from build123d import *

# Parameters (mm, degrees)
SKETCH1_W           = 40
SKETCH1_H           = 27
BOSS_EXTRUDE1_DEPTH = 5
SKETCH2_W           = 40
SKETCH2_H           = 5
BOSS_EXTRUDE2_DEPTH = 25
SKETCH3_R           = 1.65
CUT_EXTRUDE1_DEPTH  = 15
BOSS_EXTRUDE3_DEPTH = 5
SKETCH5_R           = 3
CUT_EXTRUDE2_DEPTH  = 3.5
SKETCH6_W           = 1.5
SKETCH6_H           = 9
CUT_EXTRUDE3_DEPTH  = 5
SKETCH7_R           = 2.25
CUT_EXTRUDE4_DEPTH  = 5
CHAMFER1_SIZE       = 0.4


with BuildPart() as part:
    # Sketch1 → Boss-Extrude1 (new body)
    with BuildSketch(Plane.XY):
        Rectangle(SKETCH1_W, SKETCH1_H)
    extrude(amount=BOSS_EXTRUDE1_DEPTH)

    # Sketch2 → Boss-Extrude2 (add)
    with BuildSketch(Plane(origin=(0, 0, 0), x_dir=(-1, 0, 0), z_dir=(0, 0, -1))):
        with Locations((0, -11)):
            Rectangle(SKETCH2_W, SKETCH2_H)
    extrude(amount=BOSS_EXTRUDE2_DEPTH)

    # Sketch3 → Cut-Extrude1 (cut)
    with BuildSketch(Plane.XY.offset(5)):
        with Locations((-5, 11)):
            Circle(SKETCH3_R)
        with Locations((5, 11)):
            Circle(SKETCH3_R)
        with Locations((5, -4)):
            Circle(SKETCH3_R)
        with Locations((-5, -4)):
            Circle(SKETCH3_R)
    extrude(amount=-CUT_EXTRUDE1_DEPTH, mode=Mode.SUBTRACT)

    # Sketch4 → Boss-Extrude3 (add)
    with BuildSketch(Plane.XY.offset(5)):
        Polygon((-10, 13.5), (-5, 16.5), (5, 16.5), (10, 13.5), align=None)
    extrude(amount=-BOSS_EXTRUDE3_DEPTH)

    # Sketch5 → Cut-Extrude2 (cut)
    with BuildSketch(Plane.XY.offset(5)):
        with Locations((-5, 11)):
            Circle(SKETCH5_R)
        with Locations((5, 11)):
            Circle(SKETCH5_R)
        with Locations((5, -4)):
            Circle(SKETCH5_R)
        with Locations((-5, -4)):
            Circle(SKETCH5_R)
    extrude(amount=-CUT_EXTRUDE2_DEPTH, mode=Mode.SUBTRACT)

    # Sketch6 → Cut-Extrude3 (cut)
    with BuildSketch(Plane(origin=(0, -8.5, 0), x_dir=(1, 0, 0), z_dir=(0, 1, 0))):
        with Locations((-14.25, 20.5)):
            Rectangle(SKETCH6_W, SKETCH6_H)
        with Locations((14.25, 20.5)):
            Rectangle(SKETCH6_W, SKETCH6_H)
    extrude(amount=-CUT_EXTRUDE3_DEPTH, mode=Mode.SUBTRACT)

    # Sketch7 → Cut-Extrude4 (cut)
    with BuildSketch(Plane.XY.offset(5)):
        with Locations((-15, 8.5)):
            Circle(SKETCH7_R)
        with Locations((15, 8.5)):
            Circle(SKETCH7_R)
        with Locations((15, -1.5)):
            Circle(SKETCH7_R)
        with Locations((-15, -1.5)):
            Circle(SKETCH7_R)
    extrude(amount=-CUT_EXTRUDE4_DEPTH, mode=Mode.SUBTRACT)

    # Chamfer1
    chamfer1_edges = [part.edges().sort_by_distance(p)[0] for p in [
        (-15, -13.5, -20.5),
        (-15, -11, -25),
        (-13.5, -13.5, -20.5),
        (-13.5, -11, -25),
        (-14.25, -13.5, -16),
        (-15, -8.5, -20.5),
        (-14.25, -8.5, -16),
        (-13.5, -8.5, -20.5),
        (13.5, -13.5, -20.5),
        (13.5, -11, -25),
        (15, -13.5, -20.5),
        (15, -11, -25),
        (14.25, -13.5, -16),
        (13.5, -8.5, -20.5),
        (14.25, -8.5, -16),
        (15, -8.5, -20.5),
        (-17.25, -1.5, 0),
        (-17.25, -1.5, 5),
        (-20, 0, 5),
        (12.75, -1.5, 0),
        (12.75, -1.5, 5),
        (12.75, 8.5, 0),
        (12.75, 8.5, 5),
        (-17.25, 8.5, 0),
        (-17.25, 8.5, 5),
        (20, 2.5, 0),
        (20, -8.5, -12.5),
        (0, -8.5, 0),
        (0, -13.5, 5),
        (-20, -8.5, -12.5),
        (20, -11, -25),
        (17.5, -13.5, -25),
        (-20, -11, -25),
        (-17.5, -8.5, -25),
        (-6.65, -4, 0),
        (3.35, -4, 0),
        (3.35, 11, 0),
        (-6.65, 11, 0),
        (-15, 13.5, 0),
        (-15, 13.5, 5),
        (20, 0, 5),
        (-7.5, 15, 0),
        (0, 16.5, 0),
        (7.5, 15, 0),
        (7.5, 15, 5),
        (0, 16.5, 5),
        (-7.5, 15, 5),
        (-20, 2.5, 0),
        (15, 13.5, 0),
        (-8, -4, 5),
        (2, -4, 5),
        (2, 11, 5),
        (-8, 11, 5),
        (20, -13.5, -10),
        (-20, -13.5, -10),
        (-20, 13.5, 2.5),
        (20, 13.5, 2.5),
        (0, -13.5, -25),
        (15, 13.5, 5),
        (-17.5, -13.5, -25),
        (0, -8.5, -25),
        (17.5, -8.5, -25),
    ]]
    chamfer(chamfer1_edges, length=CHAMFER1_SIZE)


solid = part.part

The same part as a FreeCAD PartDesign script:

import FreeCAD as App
import Part
import Sketcher
from FreeCAD import Vector
Q = App.Units.Quantity


def edges_at(feature, points):
    """Names of the edges that pass closest to the given points."""
    edges = feature.Shape.Edges
    near = lambda p: min(range(len(edges)), key=lambda i: edges[i].distToShape(Part.Vertex(*p))[0])
    return sorted({f"Edge{near(p) + 1}" for p in points})

doc = App.newDocument("Part")
body = doc.addObject("PartDesign::Body", "Body")

# Sketch on XY plane
sketch1 = body.newObject("Sketcher::SketchObject", "Sketch")
sketch1.AttachmentSupport = (doc.getObject("XY_Plane"), [""])
sketch1.MapMode = "FlatFace"
sketch1.addGeometry([
    Part.LineSegment(Vector(-20, 14, 0), Vector(-20, -14, 0)),
    Part.LineSegment(Vector(-20, -14, 0), Vector(20, -14, 0)),
    Part.LineSegment(Vector(20, -14, 0), Vector(20, 14, 0)),
    Part.LineSegment(Vector(20, 14, 0), Vector(-20, 14, 0)),
], False)
sketch1.addConstraint([
    Sketcher.Constraint("Coincident", 0, 2, 1, 1),
    Sketcher.Constraint("Coincident", 1, 2, 2, 1),
    Sketcher.Constraint("Coincident", 2, 2, 3, 1),
    Sketcher.Constraint("Coincident", 3, 2, 0, 1),
    Sketcher.Constraint("Vertical", 0),
    Sketcher.Constraint("Horizontal", 1),
    Sketcher.Constraint("Vertical", 2),
    Sketcher.Constraint("Horizontal", 3),
    Sketcher.Constraint("Symmetric", 0, 2, 2, 2, -1, 1),
    Sketcher.Constraint("DistanceX", 1, 1, 1, 2, Q("40 mm")),
    Sketcher.Constraint("DistanceY", 0, 2, 0, 1, Q("27 mm")),
])
pad1 = body.newObject("PartDesign::Pad", "Pad")
pad1.Profile = sketch1
pad1.Length = 5

# Sketch on XY plane
sketch2 = body.newObject("Sketcher::SketchObject", "Sketch001")
sketch2.AttachmentSupport = (doc.getObject("XY_Plane"), [""])
sketch2.MapMode = "FlatFace"
sketch2.addGeometry([
    Part.LineSegment(Vector(20, -8, 0), Vector(20, -14, 0)),
    Part.LineSegment(Vector(20, -14, 0), Vector(-20, -14, 0)),
    Part.LineSegment(Vector(-20, -14, 0), Vector(-20, -8, 0)),
    Part.LineSegment(Vector(-20, -8, 0), Vector(20, -8, 0)),
], False)
sketch2.addConstraint([
    Sketcher.Constraint("Coincident", 0, 2, 1, 1),
    Sketcher.Constraint("Coincident", 1, 2, 2, 1),
    Sketcher.Constraint("Coincident", 2, 2, 3, 1),
    Sketcher.Constraint("Coincident", 3, 2, 0, 1),
    Sketcher.Constraint("Vertical", 0),
    Sketcher.Constraint("Horizontal", 1),
    Sketcher.Constraint("Vertical", 2),
    Sketcher.Constraint("Horizontal", 3),
    Sketcher.Constraint("DistanceX", 1, 2, 1, 1, Q("40 mm")),
    Sketcher.Constraint("DistanceY", 0, 2, 0, 1, Q("5 mm")),
    Sketcher.Constraint("DistanceX", -1, 1, 0, 2, Q("20 mm")),
    Sketcher.Constraint("DistanceY", 0, 2, -1, 1, Q("13.5 mm")),
])
pad2 = body.newObject("PartDesign::Pad", "Pad001")
pad2.Profile = sketch2
pad2.Length = 25
pad2.Reversed = True

# Sketch on XY plane
sketch3 = body.newObject("Sketcher::SketchObject", "Sketch002")
sketch3.AttachmentSupport = (doc.getObject("XY_Plane"), [""])
sketch3.MapMode = "FlatFace"
sketch3.AttachmentOffset = App.Placement(Vector(0, 0, 5), App.Rotation())
sketch3.addGeometry([
    Part.Circle(Vector(-5, 11, 0), Vector(0, 0, 1), 1.6),
    Part.Circle(Vector(5, 11, 0), Vector(0, 0, 1), 1.6),
    Part.Circle(Vector(5, -4, 0), Vector(0, 0, 1), 1.6),
    Part.Circle(Vector(-5, -4, 0), Vector(0, 0, 1), 1.6),
], False)
sketch3.addConstraint([
    Sketcher.Constraint("Equal", 0, 1),
    Sketcher.Constraint("Equal", 1, 2),
    Sketcher.Constraint("Equal", 2, 3),
    Sketcher.Constraint("Symmetric", 0, 3, 1, 3, -2),
    Sketcher.Constraint("Symmetric", 2, 3, 3, 3, -2),
    Sketcher.Constraint("Vertical", 1, 3, 2, 3),
    Sketcher.Constraint("Diameter", 0, Q("3.3 mm")),
    Sketcher.Constraint("DistanceX", 0, 3, -1, 1, Q("5 mm")),
    Sketcher.Constraint("DistanceY", -1, 1, 0, 3, Q("11 mm")),
    Sketcher.Constraint("DistanceY", 2, 3, -1, 1, Q("4 mm")),
])
pocket1 = body.newObject("PartDesign::Pocket", "Pocket")
pocket1.Profile = sketch3
pocket1.Length = 15

# Sketch on XY plane
sketch4 = body.newObject("Sketcher::SketchObject", "Sketch003")
sketch4.AttachmentSupport = (doc.getObject("XY_Plane"), [""])
sketch4.MapMode = "FlatFace"
sketch4.AttachmentOffset = App.Placement(Vector(0, 0, 5), App.Rotation())
sketch4.addGeometry([
    Part.LineSegment(Vector(-5, 16, 0), Vector(-10, 14, 0)),
    Part.LineSegment(Vector(-10, 14, 0), Vector(10, 14, 0)),
    Part.LineSegment(Vector(10, 14, 0), Vector(5, 16, 0)),
    Part.LineSegment(Vector(5, 16, 0), Vector(-5, 16, 0)),
], False)
sketch4.addConstraint([
    Sketcher.Constraint("Coincident", 0, 2, 1, 1),
    Sketcher.Constraint("Coincident", 1, 2, 2, 1),
    Sketcher.Constraint("Coincident", 2, 2, 3, 1),
    Sketcher.Constraint("Coincident", 3, 2, 0, 1),
    Sketcher.Constraint("Horizontal", 1),
    Sketcher.Constraint("Horizontal", 3),
    Sketcher.Constraint("Equal", 0, 2),
    Sketcher.Constraint("DistanceX", 1, 1, 1, 2, Q("20 mm")),
    Sketcher.Constraint("DistanceX", 3, 2, 3, 1, Q("10 mm")),
    Sketcher.Constraint("DistanceX", 0, 2, -1, 1, Q("10 mm")),
    Sketcher.Constraint("DistanceY", 1, 2, 2, 2, Q("3 mm")),
    Sketcher.Constraint("DistanceY", -1, 1, 0, 2, Q("13.5 mm")),
])
pad3 = body.newObject("PartDesign::Pad", "Pad002")
pad3.Profile = sketch4
pad3.Length = 5
pad3.Reversed = True

# Sketch on XY plane
sketch5 = body.newObject("Sketcher::SketchObject", "Sketch004")
sketch5.AttachmentSupport = (doc.getObject("XY_Plane"), [""])
sketch5.MapMode = "FlatFace"
sketch5.AttachmentOffset = App.Placement(Vector(0, 0, 5), App.Rotation())
sketch5.addGeometry([
    Part.Circle(Vector(-5, 11, 0), Vector(0, 0, 1), 3),
    Part.Circle(Vector(5, 11, 0), Vector(0, 0, 1), 3),
    Part.Circle(Vector(5, -4, 0), Vector(0, 0, 1), 3),
    Part.Circle(Vector(-5, -4, 0), Vector(0, 0, 1), 3),
], False)
sketch5.addConstraint([
    Sketcher.Constraint("Equal", 0, 1),
    Sketcher.Constraint("Equal", 1, 2),
    Sketcher.Constraint("Equal", 2, 3),
    Sketcher.Constraint("Symmetric", 0, 3, 1, 3, -2),
    Sketcher.Constraint("Symmetric", 2, 3, 3, 3, -2),
    Sketcher.Constraint("Vertical", 1, 3, 2, 3),
    Sketcher.Constraint("Diameter", 0, Q("6 mm")),
    Sketcher.Constraint("DistanceX", 0, 3, -1, 1, Q("5 mm")),
    Sketcher.Constraint("DistanceY", -1, 1, 0, 3, Q("11 mm")),
    Sketcher.Constraint("DistanceY", 2, 3, -1, 1, Q("4 mm")),
])
pocket2 = body.newObject("PartDesign::Pocket", "Pocket001")
pocket2.Profile = sketch5
pocket2.Length = 3.5

# Sketch on XZ plane
sketch6 = body.newObject("Sketcher::SketchObject", "Sketch005")
sketch6.AttachmentSupport = (doc.getObject("XZ_Plane"), [""])
sketch6.MapMode = "FlatFace"
sketch6.AttachmentOffset = App.Placement(Vector(0, 0, 8.5), App.Rotation())
sketch6.addGeometry([
    Part.LineSegment(Vector(-15, -25, 0), Vector(-15, -16, 0)),  # 0
    Part.LineSegment(Vector(-15, -16, 0), Vector(-13.5, -16, 0)),  # 1
    Part.LineSegment(Vector(-13.5, -16, 0), Vector(-13.5, -25, 0)),  # 2
    Part.LineSegment(Vector(-13.5, -25, 0), Vector(-15, -25, 0)),  # 3
    Part.LineSegment(Vector(13.5, -25, 0), Vector(13.5, -16, 0)),  # 4
    Part.LineSegment(Vector(13.5, -16, 0), Vector(15, -16, 0)),  # 5
    Part.LineSegment(Vector(15, -16, 0), Vector(15, -25, 0)),  # 6
    Part.LineSegment(Vector(15, -25, 0), Vector(13.5, -25, 0)),  # 7
], False)
sketch6.addConstraint([
    Sketcher.Constraint("Coincident", 0, 2, 1, 1),
    Sketcher.Constraint("Coincident", 1, 2, 2, 1),
    Sketcher.Constraint("Coincident", 2, 2, 3, 1),
    Sketcher.Constraint("Coincident", 3, 2, 0, 1),
    Sketcher.Constraint("Coincident", 4, 2, 5, 1),
    Sketcher.Constraint("Coincident", 5, 2, 6, 1),
    Sketcher.Constraint("Coincident", 6, 2, 7, 1),
    Sketcher.Constraint("Coincident", 7, 2, 4, 1),
    Sketcher.Constraint("Vertical", 0),
    Sketcher.Constraint("Horizontal", 1),
    Sketcher.Constraint("Vertical", 2),
    Sketcher.Constraint("Horizontal", 3),
    Sketcher.Constraint("Vertical", 4),
    Sketcher.Constraint("Horizontal", 5),
    Sketcher.Constraint("Vertical", 6),
    Sketcher.Constraint("Horizontal", 7),
    Sketcher.Constraint("Symmetric", 1, 2, 4, 2, -2),
    Sketcher.Constraint("Symmetric", 3, 2, 6, 2, -2),
    Sketcher.Constraint("DistanceY", 0, 1, 0, 2, Q("9 mm")),
    Sketcher.Constraint("DistanceX", 1, 1, 1, 2, Q("1.5 mm")),
    Sketcher.Constraint("DistanceX", 0, 2, -1, 1, Q("15 mm")),
    Sketcher.Constraint("DistanceY", 0, 2, -1, 1, Q("16 mm")),
])
pocket3 = body.newObject("PartDesign::Pocket", "Pocket002")
pocket3.Profile = sketch6
pocket3.Length = 5
pocket3.Reversed = True

# Sketch on XY plane
sketch7 = body.newObject("Sketcher::SketchObject", "Sketch006")
sketch7.AttachmentSupport = (doc.getObject("XY_Plane"), [""])
sketch7.MapMode = "FlatFace"
sketch7.AttachmentOffset = App.Placement(Vector(0, 0, 5), App.Rotation())
sketch7.addGeometry([
    Part.Circle(Vector(-15, 8.5, 0), Vector(0, 0, 1), 2.2),
    Part.Circle(Vector(15, 8.5, 0), Vector(0, 0, 1), 2.2),
    Part.Circle(Vector(15, -1.5, 0), Vector(0, 0, 1), 2.2),
    Part.Circle(Vector(-15, -1.5, 0), Vector(0, 0, 1), 2.2),
], False)
sketch7.addConstraint([
    Sketcher.Constraint("Equal", 0, 1),
    Sketcher.Constraint("Equal", 1, 2),
    Sketcher.Constraint("Equal", 2, 3),
    Sketcher.Constraint("Symmetric", 0, 3, 1, 3, -2),
    Sketcher.Constraint("Symmetric", 2, 3, 3, 3, -2),
    Sketcher.Constraint("Vertical", 1, 3, 2, 3),
    Sketcher.Constraint("Diameter", 0, Q("4.5 mm")),
    Sketcher.Constraint("DistanceX", 0, 3, -1, 1, Q("15 mm")),
    Sketcher.Constraint("DistanceY", 2, 3, 1, 3, Q("10 mm")),
    Sketcher.Constraint("DistanceY", -1, 1, 0, 3, Q("8.5 mm")),
])
pocket4 = body.newObject("PartDesign::Pocket", "Pocket003")
pocket4.Profile = sketch7
pocket4.Length = 5
doc.recompute()

chamfer = body.newObject("PartDesign::Chamfer", "Chamfer")
chamfer.Base = (pocket4, edges_at(pocket4, [
    (-15, -13.5, -20.5),
    (-15, -11, -25),
    (-13.5, -13.5, -20.5),
    (-13.5, -11, -25),
    (-14.25, -13.5, -16),
    (-15, -8.5, -20.5),
    (-14.25, -8.5, -16),
    (-13.5, -8.5, -20.5),
    (13.5, -13.5, -20.5),
    (13.5, -11, -25),
    (15, -13.5, -20.5),
    (15, -11, -25),
    (14.25, -13.5, -16),
    (13.5, -8.5, -20.5),
    (14.25, -8.5, -16),
    (15, -8.5, -20.5),
    (-17.25, -1.5, 0),
    (-17.25, -1.5, 5),
    (-20, 0, 5),
    (12.75, -1.5, 0),
    (12.75, -1.5, 5),
    (12.75, 8.5, 0),
    (12.75, 8.5, 5),
    (-17.25, 8.5, 0),
    (-17.25, 8.5, 5),
    (20, 2.5, 0),
    (20, -8.5, -12.5),
    (0, -8.5, 0),
    (0, -13.5, 5),
    (-20, -8.5, -12.5),
    (20, -11, -25),
    (17.5, -13.5, -25),
    (-20, -11, -25),
    (-17.5, -8.5, -25),
    (-6.65, -4, 0),
    (3.35, -4, 0),
    (3.35, 11, 0),
    (-6.65, 11, 0),
    (-15, 13.5, 0),
    (-15, 13.5, 5),
    (20, 0, 5),
    (-7.5, 15, 0),
    (0, 16.5, 0),
    (7.5, 15, 0),
    (7.5, 15, 5),
    (0, 16.5, 5),
    (-7.5, 15, 5),
    (-20, 2.5, 0),
    (15, 13.5, 0),
    (-8, -4, 5),
    (2, -4, 5),
    (2, 11, 5),
    (-8, 11, 5),
    (20, -13.5, -10),
    (-20, -13.5, -10),
    (-20, 13.5, 2.5),
    (20, 13.5, 2.5),
    (0, -13.5, -25),
    (15, 13.5, 5),
    (-17.5, -13.5, -25),
    (0, -8.5, -25),
    (17.5, -8.5, -25),
]))
chamfer.Size = 0.4

doc.recompute()
